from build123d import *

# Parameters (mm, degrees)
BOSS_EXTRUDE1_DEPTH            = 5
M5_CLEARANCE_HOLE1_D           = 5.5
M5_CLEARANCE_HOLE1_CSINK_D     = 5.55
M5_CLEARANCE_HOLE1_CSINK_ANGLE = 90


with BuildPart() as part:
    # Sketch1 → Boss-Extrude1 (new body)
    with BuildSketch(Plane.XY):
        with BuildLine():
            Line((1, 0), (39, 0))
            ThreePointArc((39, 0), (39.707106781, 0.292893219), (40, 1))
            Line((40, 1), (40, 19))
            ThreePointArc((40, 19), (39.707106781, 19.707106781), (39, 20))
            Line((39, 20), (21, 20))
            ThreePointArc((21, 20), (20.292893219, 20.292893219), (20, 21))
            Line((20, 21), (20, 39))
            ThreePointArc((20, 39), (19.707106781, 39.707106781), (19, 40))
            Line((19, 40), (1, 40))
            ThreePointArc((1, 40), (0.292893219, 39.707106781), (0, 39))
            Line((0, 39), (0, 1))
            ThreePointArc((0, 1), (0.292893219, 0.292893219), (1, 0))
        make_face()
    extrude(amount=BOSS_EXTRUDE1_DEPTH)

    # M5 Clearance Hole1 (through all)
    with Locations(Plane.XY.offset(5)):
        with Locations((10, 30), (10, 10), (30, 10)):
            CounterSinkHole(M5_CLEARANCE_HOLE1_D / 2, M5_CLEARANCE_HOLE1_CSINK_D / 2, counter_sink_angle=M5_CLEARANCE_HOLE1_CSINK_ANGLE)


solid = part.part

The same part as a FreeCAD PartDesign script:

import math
import FreeCAD as App
import Part
import Sketcher

V = App.Vector

doc = App.newDocument("Part")
params = doc.addObject("Spreadsheet::Sheet", "Params")
for row, (alias, value) in enumerate([
    ("sketch1_radius", "1 mm"),
    ("sketch1_width", "38 mm"),
    ("pad1_length", "5 mm"),
    ("sketch2_diameter", "5.5 mm"),
    ("hole_diameter", "5.5 mm"),
    ("hole_csink_diameter", "5.55 mm"),
], start=1):
    params.set(f"A{row}", alias)
    params.set(f"B{row}", "=" + value)
    params.setAlias(f"B{row}", alias)

body = doc.addObject("PartDesign::Body", "Body")

# Sketch on XY plane
sketch1 = doc.addObject("Sketcher::SketchObject", "Sketch")
body.addObject(sketch1)
sketch1.AttachmentSupport = (doc.XY_Plane, [""])
sketch1.MapMode = "FlatFace"
sketch1.addGeometry(Part.LineSegment(V(1, 0, 0), V(39, 0, 0)), False)
sketch1.addGeometry(Part.ArcOfCircle(Part.Circle(V(39, 1, 0), V(0, 0, 1), 1), math.radians(-90), math.radians(0)), False)
sketch1.addGeometry(Part.LineSegment(V(40, 1, 0), V(40, 19, 0)), False)
sketch1.addGeometry(Part.ArcOfCircle(Part.Circle(V(39, 19, 0), V(0, 0, 1), 1), math.radians(0), math.radians(90)), False)
sketch1.addGeometry(Part.LineSegment(V(39, 20, 0), V(21, 20, 0)), False)
sketch1.addGeometry(Part.ArcOfCircle(Part.Circle(V(21, 21, 0), V(0, 0, 1), 1), math.radians(-180), math.radians(-90)), False)
sketch1.addGeometry(Part.LineSegment(V(20, 21, 0), V(20, 39, 0)), False)
sketch1.addGeometry(Part.ArcOfCircle(Part.Circle(V(19, 39, 0), V(0, 0, 1), 1), math.radians(0), math.radians(90)), False)
sketch1.addGeometry(Part.LineSegment(V(19, 40, 0), V(1, 40, 0)), False)
sketch1.addGeometry(Part.ArcOfCircle(Part.Circle(V(1, 39, 0), V(0, 0, 1), 1), math.radians(90), math.radians(180)), False)
sketch1.addGeometry(Part.LineSegment(V(0, 39, 0), V(0, 1, 0)), False)
sketch1.addGeometry(Part.ArcOfCircle(Part.Circle(V(1, 1, 0), V(0, 0, 1), 1), math.radians(-180), math.radians(-90)), False)
sketch1.addConstraint(Sketcher.Constraint("Tangent", 0, 2, 1, 1))
sketch1.addConstraint(Sketcher.Constraint("Tangent", 1, 2, 2, 1))
sketch1.addConstraint(Sketcher.Constraint("Tangent", 2, 2, 3, 1))
sketch1.addConstraint(Sketcher.Constraint("Tangent", 3, 2, 4, 1))
sketch1.addConstraint(Sketcher.Constraint("Tangent", 4, 2, 5, 2))
sketch1.addConstraint(Sketcher.Constraint("Tangent", 5, 1, 6, 1))
sketch1.addConstraint(Sketcher.Constraint("Tangent", 6, 2, 7, 1))
sketch1.addConstraint(Sketcher.Constraint("Tangent", 7, 2, 8, 1))
sketch1.addConstraint(Sketcher.Constraint("Tangent", 8, 2, 9, 1))
sketch1.addConstraint(Sketcher.Constraint("Tangent", 9, 2, 10, 1))
sketch1.addConstraint(Sketcher.Constraint("Tangent", 10, 2, 11, 1))
sketch1.addConstraint(Sketcher.Constraint("Tangent", 11, 2, 0, 1))
sketch1.addConstraint(Sketcher.Constraint("Horizontal", 0))
sketch1.addConstraint(Sketcher.Constraint("Vertical", 2))
sketch1.addConstraint(Sketcher.Constraint("Horizontal", 4))
sketch1.addConstraint(Sketcher.Constraint("Vertical", 6))
sketch1.addConstraint(Sketcher.Constraint("Horizontal", 8))
sketch1.addConstraint(Sketcher.Constraint("Vertical", 10))
sketch1.addConstraint(Sketcher.Constraint("Equal", 1, 3))
sketch1.addConstraint(Sketcher.Constraint("Equal", 3, 5))
sketch1.addConstraint(Sketcher.Constraint("Equal", 5, 7))
sketch1.addConstraint(Sketcher.Constraint("Equal", 7, 9))
sketch1.addConstraint(Sketcher.Constraint("Equal", 9, 11))
sketch1.addConstraint(Sketcher.Constraint("PointOnObject", 0, 2, -1))
sketch1.addConstraint(Sketcher.Constraint("PointOnObject", 9, 2, -2))
sketch1.addConstraint(Sketcher.Constraint("Equal", 4, 8))
sketch1.addConstraint(Sketcher.Constraint("Equal", 8, 2))
sketch1.addConstraint(Sketcher.Constraint("Equal", 2, 6))
sketch1.addConstraint(Sketcher.Constraint("Radius", 1, 1.0))
sketch1.addConstraint(Sketcher.Constraint("DistanceX", 0, 1, 0, 2, 38.0))
sketch1.setExpression("Constraints[28]", "Params.sketch1_radius")
sketch1.setExpression("Constraints[29]", "Params.sketch1_width")
pad1 = doc.addObject("PartDesign::Pad", "Pad")
body.addObject(pad1)
pad1.Profile = sketch1
pad1.setExpression("Length", "Params.pad1_length")

# Sketch on XY plane
sketch2 = doc.addObject("Sketcher::SketchObject", "Sketch001")
body.addObject(sketch2)
sketch2.AttachmentSupport = (doc.XY_Plane, [""])
sketch2.MapMode = "FlatFace"
sketch2.AttachmentOffset = App.Placement(V(0, 0, 5), App.Rotation())
sketch2.addGeometry(Part.Circle(V(10, 30, 0), V(0, 0, 1), 2.8), False)
sketch2.addGeometry(Part.Circle(V(10, 10, 0), V(0, 0, 1), 2.8), False)
sketch2.addGeometry(Part.Circle(V(30, 10, 0), V(0, 0, 1), 2.8), False)
sketch2.addConstraint(Sketcher.Constraint("Equal", 0, 1))
sketch2.addConstraint(Sketcher.Constraint("Equal", 1, 2))
sketch2.addConstraint(Sketcher.Constraint("Horizontal", 1, 3, 2, 3))
sketch2.addConstraint(Sketcher.Constraint("Vertical", 0, 3, 1, 3))
sketch2.addConstraint(Sketcher.Constraint("Diameter", 0, 5.5))
sketch2.addConstraint(Sketcher.Constraint("DistanceX", -1, 1, 0, 3, 10.0))
sketch2.addConstraint(Sketcher.Constraint("DistanceY", -1, 1, 0, 3, 30.0))
sketch2.addConstraint(Sketcher.Constraint("DistanceY", -1, 1, 1, 3, 10.0))
sketch2.addConstraint(Sketcher.Constraint("DistanceX", -1, 1, 2, 3, 30.0))
sketch2.setExpression("Constraints[4]", "Params.sketch2_diameter")
doc.recompute()
hole = doc.addObject("PartDesign::Hole", "Hole")
body.addObject(hole)
hole.Profile = sketch2
hole.ThreadType = "None"
hole.setExpression("Diameter", "Params.hole_diameter")
hole.DepthType = "ThroughAll"
hole.HoleCutType = "Countersink"
hole.setExpression("HoleCutDiameter", "Params.hole_csink_diameter")
hole.HoleCutCountersinkAngle = 90

doc.recompute()
